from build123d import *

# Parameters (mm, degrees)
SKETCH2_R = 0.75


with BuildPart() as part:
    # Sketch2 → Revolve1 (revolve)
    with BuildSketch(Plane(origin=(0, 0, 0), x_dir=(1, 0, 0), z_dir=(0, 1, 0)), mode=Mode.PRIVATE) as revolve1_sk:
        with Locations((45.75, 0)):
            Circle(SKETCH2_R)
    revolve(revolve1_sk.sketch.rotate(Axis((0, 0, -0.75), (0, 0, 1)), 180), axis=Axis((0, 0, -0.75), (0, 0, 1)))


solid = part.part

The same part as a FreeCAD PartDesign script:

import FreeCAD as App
import Part
import Sketcher

V = App.Vector
Q = App.Units.Quantity

doc = App.newDocument("Part")
params = doc.addObject("Spreadsheet::Sheet", "Params")
for row, (alias, value) in enumerate([
    ("sketch1_diameter", "1.5 mm"),
    ("revolution_angle", "360 deg"),
], start=1):
    params.set(f"A{row}", alias)
    params.set(f"B{row}", "=" + value)
    params.setAlias(f"B{row}", alias)

body = doc.addObject("PartDesign::Body", "Body")

# Sketch on XZ plane
sketch1 = body.newObject("Sketcher::SketchObject", "Sketch")
sketch1.AttachmentSupport = (doc.getObject("XZ_Plane"), [""])
sketch1.MapMode = "FlatFace"
sketch1.addGeometry(Part.Circle(V(45.8, 0, 0), V(0, 0, 1), 0.8), False)
sketch1.addConstraint([
    Sketcher.Constraint("PointOnObject", 0, 3, -1),
    Sketcher.Constraint("Diameter", 0, Q("1.5 mm")),
    Sketcher.Constraint("DistanceX", -1, 1, 0, 3, Q("45.75 mm")),
])
sketch1.setExpression("Constraints[1]", "Params.sketch1_diameter")
revolution = body.newObject("PartDesign::Revolution", "Revolution")
revolution.Profile = sketch1
revolution.ReferenceAxis = (sketch1, ["V_Axis"])
revolution.setExpression("Angle", "Params.revolution_angle")

doc.recompute()
